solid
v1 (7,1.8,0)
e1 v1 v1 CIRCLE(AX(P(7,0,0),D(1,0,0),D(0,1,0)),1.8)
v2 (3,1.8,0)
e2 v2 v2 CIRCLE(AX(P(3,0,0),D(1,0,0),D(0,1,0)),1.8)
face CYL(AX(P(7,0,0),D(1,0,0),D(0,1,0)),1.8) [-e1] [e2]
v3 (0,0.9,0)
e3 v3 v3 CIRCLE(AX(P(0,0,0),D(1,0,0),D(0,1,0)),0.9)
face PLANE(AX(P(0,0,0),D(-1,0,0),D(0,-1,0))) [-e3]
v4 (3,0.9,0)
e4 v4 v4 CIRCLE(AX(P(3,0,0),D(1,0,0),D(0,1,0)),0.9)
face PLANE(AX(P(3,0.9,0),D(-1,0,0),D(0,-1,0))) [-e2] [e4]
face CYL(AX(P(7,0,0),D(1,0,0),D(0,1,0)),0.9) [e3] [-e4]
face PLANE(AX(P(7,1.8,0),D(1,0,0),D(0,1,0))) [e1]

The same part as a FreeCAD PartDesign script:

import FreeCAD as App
import Part
import Sketcher
Q = App.Units.Quantity

doc = App.newDocument("Part")
body = doc.addObject("PartDesign::Body", "Body")

# Sketch on XY plane
sketch1 = doc.addObject("Sketcher::SketchObject", "Sketch")
body.addObject(sketch1)
sketch1.AttachmentSupport = (doc.XY_Plane, [""])
sketch1.MapMode = "FlatFace"
sketch1.addGeometry(Part.LineSegment(App.Vector(0, 0.9, 0), App.Vector(0, 0, 0)), False)
sketch1.addGeometry(Part.LineSegment(App.Vector(0, 0, 0), App.Vector(7, 0, 0)), False)
sketch1.addGeometry(Part.LineSegment(App.Vector(7, 0, 0), App.Vector(7, 1.8, 0)), False)
sketch1.addGeometry(Part.LineSegment(App.Vector(7, 1.8, 0), App.Vector(3, 1.8, 0)), False)
sketch1.addGeometry(Part.LineSegment(App.Vector(3, 1.8, 0), App.Vector(3, 0.9, 0)), False)
sketch1.addGeometry(Part.LineSegment(App.Vector(3, 0.9, 0), App.Vector(0, 0.9, 0)), False)
sketch1.addConstraint(Sketcher.Constraint("Coincident", 0, 2, 1, 1))
sketch1.addConstraint(Sketcher.Constraint("Coincident", 1, 2, 2, 1))
sketch1.addConstraint(Sketcher.Constraint("Coincident", 2, 2, 3, 1))
sketch1.addConstraint(Sketcher.Constraint("Coincident", 3, 2, 4, 1))
sketch1.addConstraint(Sketcher.Constraint("Coincident", 4, 2, 5, 1))
sketch1.addConstraint(Sketcher.Constraint("Coincident", 5, 2, 0, 1))
sketch1.addConstraint(Sketcher.Constraint("Vertical", 0))
sketch1.addConstraint(Sketcher.Constraint("Horizontal", 1))
sketch1.addConstraint(Sketcher.Constraint("Vertical", 2))
sketch1.addConstraint(Sketcher.Constraint("Horizontal", 3))
sketch1.addConstraint(Sketcher.Constraint("Vertical", 4))
sketch1.addConstraint(Sketcher.Constraint("Horizontal", 5))
sketch1.addConstraint(Sketcher.Constraint("Coincident", 0, 2, -1, 1))
sketch1.addConstraint(Sketcher.Constraint("Equal", 0, 4))
sketch1.addConstraint(Sketcher.Constraint("DistanceX", 1, 1, 1, 2, Q("7 mm")))
sketch1.addConstraint(Sketcher.Constraint("DistanceX", 3, 2, 3, 1, Q("4 mm")))
sketch1.addConstraint(Sketcher.Constraint("DistanceY", 0, 2, 0, 1, Q("0.9 mm")))
revolution = doc.addObject("PartDesign::Revolution", "Revolution")
body.addObject(revolution)
revolution.Profile = sketch1
revolution.ReferenceAxis = (sketch1, ["H_Axis"])
revolution.Angle = 360

doc.recompute()
